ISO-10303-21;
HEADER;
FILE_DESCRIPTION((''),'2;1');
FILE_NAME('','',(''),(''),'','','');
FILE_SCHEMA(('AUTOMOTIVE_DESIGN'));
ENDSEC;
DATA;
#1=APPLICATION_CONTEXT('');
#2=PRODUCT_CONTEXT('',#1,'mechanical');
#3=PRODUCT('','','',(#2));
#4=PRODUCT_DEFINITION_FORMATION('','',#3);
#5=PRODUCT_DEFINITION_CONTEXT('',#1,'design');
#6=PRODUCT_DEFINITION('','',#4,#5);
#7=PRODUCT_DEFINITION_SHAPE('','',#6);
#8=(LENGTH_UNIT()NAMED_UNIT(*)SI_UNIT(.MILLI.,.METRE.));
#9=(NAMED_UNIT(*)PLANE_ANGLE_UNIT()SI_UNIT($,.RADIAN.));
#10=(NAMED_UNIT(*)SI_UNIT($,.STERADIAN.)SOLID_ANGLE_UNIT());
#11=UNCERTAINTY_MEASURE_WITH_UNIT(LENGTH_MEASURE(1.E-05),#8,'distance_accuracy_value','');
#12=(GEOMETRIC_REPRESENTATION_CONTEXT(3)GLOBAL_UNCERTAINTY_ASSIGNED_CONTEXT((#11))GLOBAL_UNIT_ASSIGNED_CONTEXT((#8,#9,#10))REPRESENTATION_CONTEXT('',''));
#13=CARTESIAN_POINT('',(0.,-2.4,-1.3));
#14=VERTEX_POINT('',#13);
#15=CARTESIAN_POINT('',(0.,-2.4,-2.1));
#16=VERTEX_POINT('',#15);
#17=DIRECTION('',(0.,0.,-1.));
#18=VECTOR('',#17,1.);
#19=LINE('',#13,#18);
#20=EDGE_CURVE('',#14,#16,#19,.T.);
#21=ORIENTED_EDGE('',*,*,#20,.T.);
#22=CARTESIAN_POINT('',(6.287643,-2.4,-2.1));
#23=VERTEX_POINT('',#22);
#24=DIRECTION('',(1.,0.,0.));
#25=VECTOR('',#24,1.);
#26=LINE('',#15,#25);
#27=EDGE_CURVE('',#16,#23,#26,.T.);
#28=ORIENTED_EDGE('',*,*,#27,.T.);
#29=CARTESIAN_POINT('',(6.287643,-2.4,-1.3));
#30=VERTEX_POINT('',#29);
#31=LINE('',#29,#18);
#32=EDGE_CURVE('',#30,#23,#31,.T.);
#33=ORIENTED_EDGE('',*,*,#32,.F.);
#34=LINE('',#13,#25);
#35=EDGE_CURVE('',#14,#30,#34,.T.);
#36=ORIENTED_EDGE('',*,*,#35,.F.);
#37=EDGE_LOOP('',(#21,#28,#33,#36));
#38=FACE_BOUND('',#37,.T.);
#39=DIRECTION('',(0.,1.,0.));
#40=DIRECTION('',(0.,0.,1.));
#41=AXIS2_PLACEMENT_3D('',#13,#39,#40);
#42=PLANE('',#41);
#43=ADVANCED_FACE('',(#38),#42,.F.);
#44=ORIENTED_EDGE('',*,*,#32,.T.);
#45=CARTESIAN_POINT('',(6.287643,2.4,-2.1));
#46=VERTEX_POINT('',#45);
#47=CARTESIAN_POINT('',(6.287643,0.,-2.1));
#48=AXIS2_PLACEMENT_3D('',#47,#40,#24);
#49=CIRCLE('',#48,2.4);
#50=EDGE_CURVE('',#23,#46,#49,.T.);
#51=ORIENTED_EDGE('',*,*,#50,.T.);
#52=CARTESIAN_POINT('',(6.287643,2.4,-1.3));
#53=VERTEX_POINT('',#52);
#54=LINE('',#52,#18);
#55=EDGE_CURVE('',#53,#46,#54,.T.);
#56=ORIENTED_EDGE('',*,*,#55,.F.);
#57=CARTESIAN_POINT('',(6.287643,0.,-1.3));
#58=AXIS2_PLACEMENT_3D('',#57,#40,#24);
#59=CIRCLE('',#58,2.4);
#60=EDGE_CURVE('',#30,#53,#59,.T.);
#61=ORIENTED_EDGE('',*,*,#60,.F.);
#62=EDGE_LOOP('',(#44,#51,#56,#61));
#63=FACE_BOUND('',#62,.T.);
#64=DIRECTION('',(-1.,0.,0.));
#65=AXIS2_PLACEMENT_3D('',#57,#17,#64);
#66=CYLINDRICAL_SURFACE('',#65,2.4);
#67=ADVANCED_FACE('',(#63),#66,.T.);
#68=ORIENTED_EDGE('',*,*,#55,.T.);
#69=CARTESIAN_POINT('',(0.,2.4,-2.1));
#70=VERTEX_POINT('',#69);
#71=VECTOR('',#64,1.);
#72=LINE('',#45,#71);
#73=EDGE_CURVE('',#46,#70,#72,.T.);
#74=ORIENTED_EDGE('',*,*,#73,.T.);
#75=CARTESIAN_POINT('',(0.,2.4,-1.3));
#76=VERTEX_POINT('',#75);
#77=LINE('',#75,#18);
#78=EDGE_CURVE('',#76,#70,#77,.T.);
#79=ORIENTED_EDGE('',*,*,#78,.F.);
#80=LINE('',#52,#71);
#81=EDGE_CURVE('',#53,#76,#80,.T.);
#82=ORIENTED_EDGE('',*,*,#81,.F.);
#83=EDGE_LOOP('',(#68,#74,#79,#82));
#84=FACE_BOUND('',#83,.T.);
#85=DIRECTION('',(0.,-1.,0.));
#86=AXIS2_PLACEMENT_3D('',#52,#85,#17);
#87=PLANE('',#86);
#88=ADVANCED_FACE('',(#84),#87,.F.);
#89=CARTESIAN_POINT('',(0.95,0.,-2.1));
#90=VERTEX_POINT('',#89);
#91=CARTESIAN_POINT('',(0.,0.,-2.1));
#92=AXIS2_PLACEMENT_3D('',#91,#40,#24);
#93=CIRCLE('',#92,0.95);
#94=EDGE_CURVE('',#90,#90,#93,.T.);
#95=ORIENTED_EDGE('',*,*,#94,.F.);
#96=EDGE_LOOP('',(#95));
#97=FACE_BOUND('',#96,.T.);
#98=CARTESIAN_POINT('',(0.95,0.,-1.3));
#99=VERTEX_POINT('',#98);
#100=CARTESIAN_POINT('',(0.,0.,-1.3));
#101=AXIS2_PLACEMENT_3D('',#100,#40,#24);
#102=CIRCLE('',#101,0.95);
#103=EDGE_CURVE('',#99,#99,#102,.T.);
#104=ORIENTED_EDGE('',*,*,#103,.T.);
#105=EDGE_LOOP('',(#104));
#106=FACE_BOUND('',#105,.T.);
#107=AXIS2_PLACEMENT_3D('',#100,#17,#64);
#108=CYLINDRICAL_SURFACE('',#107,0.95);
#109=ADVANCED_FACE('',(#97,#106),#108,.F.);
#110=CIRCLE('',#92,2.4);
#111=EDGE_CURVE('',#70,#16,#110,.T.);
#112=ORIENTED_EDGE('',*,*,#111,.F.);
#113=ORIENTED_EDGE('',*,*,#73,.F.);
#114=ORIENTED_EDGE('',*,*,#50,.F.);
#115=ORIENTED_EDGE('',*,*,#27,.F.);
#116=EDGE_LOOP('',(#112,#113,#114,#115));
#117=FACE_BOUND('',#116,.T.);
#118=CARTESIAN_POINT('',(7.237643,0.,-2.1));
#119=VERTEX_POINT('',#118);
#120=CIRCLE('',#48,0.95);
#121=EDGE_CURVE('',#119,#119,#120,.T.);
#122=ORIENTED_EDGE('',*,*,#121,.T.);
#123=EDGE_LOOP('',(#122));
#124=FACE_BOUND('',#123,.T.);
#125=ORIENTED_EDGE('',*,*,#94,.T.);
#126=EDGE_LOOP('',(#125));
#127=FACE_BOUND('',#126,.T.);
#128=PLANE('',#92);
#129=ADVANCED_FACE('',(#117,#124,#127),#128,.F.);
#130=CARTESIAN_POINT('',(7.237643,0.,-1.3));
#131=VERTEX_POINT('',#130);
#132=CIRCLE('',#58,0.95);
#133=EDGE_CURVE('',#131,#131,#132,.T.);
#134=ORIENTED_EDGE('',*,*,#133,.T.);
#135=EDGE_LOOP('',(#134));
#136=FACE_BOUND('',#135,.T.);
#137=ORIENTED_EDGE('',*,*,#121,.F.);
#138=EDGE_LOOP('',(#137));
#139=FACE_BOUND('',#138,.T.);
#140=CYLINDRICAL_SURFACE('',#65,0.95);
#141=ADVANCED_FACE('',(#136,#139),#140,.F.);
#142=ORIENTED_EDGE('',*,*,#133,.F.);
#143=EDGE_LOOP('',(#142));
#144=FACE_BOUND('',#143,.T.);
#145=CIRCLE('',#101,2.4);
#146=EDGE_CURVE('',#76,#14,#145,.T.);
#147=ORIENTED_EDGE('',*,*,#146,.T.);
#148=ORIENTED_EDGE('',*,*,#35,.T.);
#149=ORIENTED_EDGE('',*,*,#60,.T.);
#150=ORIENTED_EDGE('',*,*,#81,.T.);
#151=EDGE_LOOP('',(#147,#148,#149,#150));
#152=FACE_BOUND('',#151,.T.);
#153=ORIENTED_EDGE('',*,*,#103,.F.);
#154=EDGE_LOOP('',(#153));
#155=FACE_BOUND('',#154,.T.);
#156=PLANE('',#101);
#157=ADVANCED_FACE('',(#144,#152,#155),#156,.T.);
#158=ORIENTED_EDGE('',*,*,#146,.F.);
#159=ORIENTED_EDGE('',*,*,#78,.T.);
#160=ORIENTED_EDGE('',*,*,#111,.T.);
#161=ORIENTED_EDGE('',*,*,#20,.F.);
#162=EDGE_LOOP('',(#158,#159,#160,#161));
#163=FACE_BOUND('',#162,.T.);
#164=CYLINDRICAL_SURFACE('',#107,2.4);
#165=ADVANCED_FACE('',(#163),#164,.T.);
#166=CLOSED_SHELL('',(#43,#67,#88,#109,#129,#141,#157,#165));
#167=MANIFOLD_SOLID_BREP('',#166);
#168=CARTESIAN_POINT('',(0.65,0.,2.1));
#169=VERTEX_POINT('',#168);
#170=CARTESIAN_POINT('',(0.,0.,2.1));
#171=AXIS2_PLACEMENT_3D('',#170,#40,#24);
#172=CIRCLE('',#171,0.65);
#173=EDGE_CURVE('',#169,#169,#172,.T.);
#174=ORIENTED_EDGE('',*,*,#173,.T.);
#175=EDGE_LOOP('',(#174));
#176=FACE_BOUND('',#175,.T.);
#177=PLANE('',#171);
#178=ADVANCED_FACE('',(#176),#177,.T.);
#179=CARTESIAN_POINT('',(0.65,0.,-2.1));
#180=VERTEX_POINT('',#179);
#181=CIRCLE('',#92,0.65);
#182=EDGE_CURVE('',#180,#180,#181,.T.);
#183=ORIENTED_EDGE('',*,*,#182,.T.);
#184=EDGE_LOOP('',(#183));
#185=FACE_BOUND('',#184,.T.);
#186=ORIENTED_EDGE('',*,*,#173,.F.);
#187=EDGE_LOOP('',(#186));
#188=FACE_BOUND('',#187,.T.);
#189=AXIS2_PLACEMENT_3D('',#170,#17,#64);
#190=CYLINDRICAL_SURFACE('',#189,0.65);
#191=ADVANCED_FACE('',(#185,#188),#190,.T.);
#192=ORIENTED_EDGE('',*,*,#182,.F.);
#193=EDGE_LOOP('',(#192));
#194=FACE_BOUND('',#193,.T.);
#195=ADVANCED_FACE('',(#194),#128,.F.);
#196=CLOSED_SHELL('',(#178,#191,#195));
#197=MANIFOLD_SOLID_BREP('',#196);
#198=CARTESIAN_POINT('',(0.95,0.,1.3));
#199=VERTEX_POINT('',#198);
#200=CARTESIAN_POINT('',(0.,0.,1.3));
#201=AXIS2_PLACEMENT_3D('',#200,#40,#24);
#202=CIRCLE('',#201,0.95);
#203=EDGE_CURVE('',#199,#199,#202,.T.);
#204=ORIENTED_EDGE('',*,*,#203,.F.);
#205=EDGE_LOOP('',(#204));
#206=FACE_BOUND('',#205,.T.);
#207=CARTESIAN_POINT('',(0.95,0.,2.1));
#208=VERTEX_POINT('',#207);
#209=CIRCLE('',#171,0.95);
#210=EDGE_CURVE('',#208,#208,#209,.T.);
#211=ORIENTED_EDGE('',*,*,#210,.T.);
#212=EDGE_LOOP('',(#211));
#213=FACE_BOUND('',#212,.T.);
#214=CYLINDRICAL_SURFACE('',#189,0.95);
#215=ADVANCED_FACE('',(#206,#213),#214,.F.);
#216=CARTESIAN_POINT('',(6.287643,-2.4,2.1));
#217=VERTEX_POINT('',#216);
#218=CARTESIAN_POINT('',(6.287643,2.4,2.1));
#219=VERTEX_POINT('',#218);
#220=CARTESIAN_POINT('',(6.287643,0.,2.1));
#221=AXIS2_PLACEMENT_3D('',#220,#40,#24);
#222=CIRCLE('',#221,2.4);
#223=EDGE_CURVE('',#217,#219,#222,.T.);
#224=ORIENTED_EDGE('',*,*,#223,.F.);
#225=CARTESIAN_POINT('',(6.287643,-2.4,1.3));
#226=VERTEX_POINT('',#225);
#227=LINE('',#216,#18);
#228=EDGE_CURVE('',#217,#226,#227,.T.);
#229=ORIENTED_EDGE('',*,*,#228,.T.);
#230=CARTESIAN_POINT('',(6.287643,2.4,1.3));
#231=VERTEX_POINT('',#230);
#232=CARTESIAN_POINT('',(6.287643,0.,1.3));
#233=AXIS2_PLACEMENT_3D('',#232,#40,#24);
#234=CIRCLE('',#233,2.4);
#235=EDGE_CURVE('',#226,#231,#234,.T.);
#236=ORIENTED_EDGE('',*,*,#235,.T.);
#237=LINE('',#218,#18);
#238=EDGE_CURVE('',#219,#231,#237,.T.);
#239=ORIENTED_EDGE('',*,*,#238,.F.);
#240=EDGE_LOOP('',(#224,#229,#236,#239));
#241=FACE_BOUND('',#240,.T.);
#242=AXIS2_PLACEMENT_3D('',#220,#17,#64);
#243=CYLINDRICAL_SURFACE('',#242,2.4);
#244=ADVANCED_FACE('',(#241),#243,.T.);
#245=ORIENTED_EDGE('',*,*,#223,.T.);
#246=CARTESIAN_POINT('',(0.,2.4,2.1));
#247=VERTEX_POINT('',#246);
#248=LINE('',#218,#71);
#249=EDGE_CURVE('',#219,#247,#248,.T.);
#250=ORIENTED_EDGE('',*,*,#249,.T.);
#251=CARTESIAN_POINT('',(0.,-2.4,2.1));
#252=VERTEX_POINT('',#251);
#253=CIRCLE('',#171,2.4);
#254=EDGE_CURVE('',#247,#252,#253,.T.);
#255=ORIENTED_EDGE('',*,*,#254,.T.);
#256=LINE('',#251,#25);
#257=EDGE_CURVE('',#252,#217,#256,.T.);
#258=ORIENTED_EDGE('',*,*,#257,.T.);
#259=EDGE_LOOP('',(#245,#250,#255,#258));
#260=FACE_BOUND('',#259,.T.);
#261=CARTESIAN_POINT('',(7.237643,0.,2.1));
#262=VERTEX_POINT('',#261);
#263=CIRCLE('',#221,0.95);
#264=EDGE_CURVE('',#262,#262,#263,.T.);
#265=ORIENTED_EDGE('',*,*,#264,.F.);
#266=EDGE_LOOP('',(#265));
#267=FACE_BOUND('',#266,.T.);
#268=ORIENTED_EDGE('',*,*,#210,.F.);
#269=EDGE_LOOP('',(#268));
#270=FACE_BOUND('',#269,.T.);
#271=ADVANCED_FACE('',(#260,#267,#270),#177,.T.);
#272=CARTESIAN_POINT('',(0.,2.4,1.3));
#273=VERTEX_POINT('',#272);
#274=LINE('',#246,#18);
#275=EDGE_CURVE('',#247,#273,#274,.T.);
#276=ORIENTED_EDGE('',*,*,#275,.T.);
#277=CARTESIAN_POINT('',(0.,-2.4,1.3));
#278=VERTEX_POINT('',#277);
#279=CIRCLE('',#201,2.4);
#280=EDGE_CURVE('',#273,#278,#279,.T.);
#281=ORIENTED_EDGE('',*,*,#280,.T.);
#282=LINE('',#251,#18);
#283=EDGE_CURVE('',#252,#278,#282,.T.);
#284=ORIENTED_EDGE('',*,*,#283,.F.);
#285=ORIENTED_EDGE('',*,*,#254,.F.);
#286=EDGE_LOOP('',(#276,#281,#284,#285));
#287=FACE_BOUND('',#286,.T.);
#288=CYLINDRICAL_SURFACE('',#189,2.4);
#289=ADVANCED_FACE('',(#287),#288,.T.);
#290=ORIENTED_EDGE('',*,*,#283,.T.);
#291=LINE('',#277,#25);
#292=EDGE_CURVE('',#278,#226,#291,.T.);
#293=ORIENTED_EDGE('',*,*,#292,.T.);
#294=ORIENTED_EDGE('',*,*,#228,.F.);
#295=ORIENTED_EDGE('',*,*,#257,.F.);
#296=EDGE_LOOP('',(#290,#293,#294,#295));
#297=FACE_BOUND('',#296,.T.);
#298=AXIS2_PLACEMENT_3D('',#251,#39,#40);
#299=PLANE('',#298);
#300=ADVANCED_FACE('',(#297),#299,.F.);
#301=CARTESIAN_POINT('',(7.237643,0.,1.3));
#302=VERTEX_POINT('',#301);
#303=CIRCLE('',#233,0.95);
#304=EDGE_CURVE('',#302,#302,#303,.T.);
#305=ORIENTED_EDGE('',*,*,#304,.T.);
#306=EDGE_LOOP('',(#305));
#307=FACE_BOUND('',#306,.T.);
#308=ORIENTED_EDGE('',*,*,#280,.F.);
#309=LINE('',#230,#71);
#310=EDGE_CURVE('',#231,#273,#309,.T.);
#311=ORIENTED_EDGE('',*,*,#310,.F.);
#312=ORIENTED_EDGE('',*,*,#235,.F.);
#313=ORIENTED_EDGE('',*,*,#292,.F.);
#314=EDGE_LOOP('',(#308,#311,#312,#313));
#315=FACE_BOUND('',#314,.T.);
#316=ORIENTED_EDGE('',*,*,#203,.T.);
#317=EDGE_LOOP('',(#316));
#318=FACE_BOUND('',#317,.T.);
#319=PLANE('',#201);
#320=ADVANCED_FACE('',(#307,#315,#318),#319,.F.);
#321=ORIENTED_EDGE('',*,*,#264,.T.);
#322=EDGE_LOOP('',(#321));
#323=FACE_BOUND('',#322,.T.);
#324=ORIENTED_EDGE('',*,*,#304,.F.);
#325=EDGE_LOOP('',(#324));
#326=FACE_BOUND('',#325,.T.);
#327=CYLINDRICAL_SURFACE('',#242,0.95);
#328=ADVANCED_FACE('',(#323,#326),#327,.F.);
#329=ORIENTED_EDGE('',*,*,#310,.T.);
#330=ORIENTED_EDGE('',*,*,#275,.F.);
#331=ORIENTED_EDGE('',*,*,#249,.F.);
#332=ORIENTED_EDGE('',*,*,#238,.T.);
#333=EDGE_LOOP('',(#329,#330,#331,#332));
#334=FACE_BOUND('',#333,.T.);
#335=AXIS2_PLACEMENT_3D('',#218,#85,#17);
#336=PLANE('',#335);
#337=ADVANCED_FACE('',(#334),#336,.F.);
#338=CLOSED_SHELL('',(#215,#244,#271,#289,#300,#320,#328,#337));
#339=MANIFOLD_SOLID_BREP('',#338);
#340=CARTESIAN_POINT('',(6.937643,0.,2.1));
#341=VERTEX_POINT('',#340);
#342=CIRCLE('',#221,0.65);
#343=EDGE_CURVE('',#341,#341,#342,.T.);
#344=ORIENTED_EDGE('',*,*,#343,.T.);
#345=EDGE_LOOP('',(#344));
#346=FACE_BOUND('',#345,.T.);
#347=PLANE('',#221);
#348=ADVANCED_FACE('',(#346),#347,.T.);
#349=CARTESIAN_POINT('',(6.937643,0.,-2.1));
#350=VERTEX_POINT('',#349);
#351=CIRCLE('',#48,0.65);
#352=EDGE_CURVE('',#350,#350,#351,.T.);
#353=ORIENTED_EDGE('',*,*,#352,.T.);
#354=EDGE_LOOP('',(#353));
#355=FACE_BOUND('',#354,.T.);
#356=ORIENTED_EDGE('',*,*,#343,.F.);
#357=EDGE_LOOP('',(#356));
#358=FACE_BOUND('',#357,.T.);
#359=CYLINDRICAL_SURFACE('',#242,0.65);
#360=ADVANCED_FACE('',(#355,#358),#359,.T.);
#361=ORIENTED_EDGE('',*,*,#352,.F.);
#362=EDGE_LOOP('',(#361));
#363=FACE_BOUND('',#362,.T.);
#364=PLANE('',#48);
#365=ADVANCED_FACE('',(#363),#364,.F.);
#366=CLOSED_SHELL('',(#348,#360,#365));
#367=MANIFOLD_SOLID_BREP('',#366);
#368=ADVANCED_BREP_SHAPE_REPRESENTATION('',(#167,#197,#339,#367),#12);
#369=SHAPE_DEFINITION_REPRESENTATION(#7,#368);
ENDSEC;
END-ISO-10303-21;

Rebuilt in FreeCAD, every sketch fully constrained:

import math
import FreeCAD as App
import Part
import Sketcher
from FreeCAD import Vector
Q = App.Units.Quantity

doc = App.newDocument("Part")
body = doc.addObject("PartDesign::Body", "Body")

# Sketch on XY plane
sketch1 = doc.addObject("Sketcher::SketchObject", "Sketch")
body.addObject(sketch1)
sketch1.AttachmentSupport = (doc.XY_Plane, [""])
sketch1.MapMode = "FlatFace"
sketch1.AttachmentOffset = App.Placement(Vector(0, 0, 1.3), App.Rotation())
sketch1.addGeometry([
    Part.LineSegment(Vector(0, -2.4, 0), Vector(6.287643, -2.4, 0)),  # 0
    Part.ArcOfCircle(Part.Circle(Vector(6.287643, 0, 0), Vector(0, 0, 1), 2.4), math.radians(-90), math.radians(90)),  # 1
    Part.LineSegment(Vector(6.287643, 2.4, 0), Vector(0, 2.4, 0)),  # 2
    Part.ArcOfCircle(Part.Circle(Vector(0, 0, 0), Vector(0, 0, 1), 2.4), math.radians(90), math.radians(270)),  # 3
    Part.Circle(Vector(0, 0, 0), Vector(0, 0, 1), 0.95),  # 4
    Part.Circle(Vector(6.287643, 0, 0), Vector(0, 0, 1), 0.95),  # 5
], False)
sketch1.addConstraint([
    Sketcher.Constraint("Tangent", 0, 2, 1, 1),
    Sketcher.Constraint("Tangent", 1, 2, 2, 1),
    Sketcher.Constraint("Tangent", 2, 2, 3, 1),
    Sketcher.Constraint("Tangent", 3, 2, 0, 1),
    Sketcher.Constraint("Horizontal", 0),
    Sketcher.Constraint("Horizontal", 2),
    Sketcher.Constraint("Coincident", 3, 3, -1, 1),
    Sketcher.Constraint("Coincident", 4, 3, -1, 1),
    Sketcher.Constraint("Coincident", 5, 3, 1, 3),
    Sketcher.Constraint("Equal", 4, 5),
    Sketcher.Constraint("Diameter", 4, Q("1.9 mm")),
    Sketcher.Constraint("Radius", 1, Q("2.4 mm")),
    Sketcher.Constraint("DistanceX", 0, 1, 0, 2, Q("6.287643 mm")),
])
pad1 = doc.addObject("PartDesign::Pad", "Pad")
body.addObject(pad1)
pad1.Profile = sketch1
pad1.Length = 0.8
body2 = doc.addObject("PartDesign::Body", "Body001")

# Sketch on XY plane
sketch2 = doc.addObject("Sketcher::SketchObject", "Sketch001")
body2.addObject(sketch2)
sketch2.AttachmentSupport = (doc.getObject("XY_Plane001"), [""])
sketch2.MapMode = "FlatFace"
sketch2.AttachmentOffset = App.Placement(Vector(0, 0, -2.1), App.Rotation())
sketch2.addGeometry([
    Part.LineSegment(Vector(0, -2.4, 0), Vector(6.287643, -2.4, 0)),  # 0
    Part.ArcOfCircle(Part.Circle(Vector(6.287643, 0, 0), Vector(0, 0, 1), 2.4), math.radians(-90), math.radians(90)),  # 1
    Part.LineSegment(Vector(6.287643, 2.4, 0), Vector(0, 2.4, 0)),  # 2
    Part.ArcOfCircle(Part.Circle(Vector(0, 0, 0), Vector(0, 0, 1), 2.4), math.radians(90), math.radians(270)),  # 3
    Part.Circle(Vector(0, 0, 0), Vector(0, 0, 1), 0.95),  # 4
    Part.Circle(Vector(6.287643, 0, 0), Vector(0, 0, 1), 0.95),  # 5
], False)
sketch2.addConstraint([
    Sketcher.Constraint("Tangent", 0, 2, 1, 1),
    Sketcher.Constraint("Tangent", 1, 2, 2, 1),
    Sketcher.Constraint("Tangent", 2, 2, 3, 1),
    Sketcher.Constraint("Tangent", 3, 2, 0, 1),
    Sketcher.Constraint("Horizontal", 0),
    Sketcher.Constraint("Horizontal", 2),
    Sketcher.Constraint("Coincident", 3, 3, -1, 1),
    Sketcher.Constraint("Coincident", 4, 3, -1, 1),
    Sketcher.Constraint("Coincident", 5, 3, 1, 3),
    Sketcher.Constraint("Equal", 4, 5),
    Sketcher.Constraint("Diameter", 4, Q("1.9 mm")),
    Sketcher.Constraint("Radius", 1, Q("2.4 mm")),
    Sketcher.Constraint("DistanceX", 0, 1, 0, 2, Q("6.287643 mm")),
])
pad2 = doc.addObject("PartDesign::Pad", "Pad001")
body2.addObject(pad2)
pad2.Profile = sketch2
pad2.Length = 0.8
body3 = doc.addObject("PartDesign::Body", "Body002")

# Sketch on XY plane
sketch3 = doc.addObject("Sketcher::SketchObject", "Sketch002")
body3.addObject(sketch3)
sketch3.AttachmentSupport = (doc.getObject("XY_Plane002"), [""])
sketch3.MapMode = "FlatFace"
sketch3.AttachmentOffset = App.Placement(Vector(0, 0, -2.1), App.Rotation())
sketch3.addGeometry(Part.Circle(Vector(0, 0, 0), Vector(0, 0, 1), 0.65), False)
sketch3.addConstraint([
    Sketcher.Constraint("Coincident", 0, 3, -1, 1),
    Sketcher.Constraint("Diameter", 0, Q("1.3 mm")),
])
pad3 = doc.addObject("PartDesign::Pad", "Pad002")
body3.addObject(pad3)
pad3.Profile = sketch3
pad3.Length = 4.2
body4 = doc.addObject("PartDesign::Body", "Body003")

# Sketch on XY plane
sketch4 = doc.addObject("Sketcher::SketchObject", "Sketch003")
body4.addObject(sketch4)
sketch4.AttachmentSupport = (doc.getObject("XY_Plane003"), [""])
sketch4.MapMode = "FlatFace"
sketch4.AttachmentOffset = App.Placement(Vector(0, 0, -2.1), App.Rotation())
sketch4.addGeometry(Part.Circle(Vector(6.287643, 0, 0), Vector(0, 0, 1), 0.65), False)
sketch4.addConstraint([
    Sketcher.Constraint("PointOnObject", 0, 3, -1),
    Sketcher.Constraint("Diameter", 0, Q("1.3 mm")),
    Sketcher.Constraint("DistanceX", -1, 1, 0, 3, Q("6.287643 mm")),
])
pad4 = doc.addObject("PartDesign::Pad", "Pad003")
body4.addObject(pad4)
pad4.Profile = sketch4
pad4.Length = 4.2

doc.recompute()
